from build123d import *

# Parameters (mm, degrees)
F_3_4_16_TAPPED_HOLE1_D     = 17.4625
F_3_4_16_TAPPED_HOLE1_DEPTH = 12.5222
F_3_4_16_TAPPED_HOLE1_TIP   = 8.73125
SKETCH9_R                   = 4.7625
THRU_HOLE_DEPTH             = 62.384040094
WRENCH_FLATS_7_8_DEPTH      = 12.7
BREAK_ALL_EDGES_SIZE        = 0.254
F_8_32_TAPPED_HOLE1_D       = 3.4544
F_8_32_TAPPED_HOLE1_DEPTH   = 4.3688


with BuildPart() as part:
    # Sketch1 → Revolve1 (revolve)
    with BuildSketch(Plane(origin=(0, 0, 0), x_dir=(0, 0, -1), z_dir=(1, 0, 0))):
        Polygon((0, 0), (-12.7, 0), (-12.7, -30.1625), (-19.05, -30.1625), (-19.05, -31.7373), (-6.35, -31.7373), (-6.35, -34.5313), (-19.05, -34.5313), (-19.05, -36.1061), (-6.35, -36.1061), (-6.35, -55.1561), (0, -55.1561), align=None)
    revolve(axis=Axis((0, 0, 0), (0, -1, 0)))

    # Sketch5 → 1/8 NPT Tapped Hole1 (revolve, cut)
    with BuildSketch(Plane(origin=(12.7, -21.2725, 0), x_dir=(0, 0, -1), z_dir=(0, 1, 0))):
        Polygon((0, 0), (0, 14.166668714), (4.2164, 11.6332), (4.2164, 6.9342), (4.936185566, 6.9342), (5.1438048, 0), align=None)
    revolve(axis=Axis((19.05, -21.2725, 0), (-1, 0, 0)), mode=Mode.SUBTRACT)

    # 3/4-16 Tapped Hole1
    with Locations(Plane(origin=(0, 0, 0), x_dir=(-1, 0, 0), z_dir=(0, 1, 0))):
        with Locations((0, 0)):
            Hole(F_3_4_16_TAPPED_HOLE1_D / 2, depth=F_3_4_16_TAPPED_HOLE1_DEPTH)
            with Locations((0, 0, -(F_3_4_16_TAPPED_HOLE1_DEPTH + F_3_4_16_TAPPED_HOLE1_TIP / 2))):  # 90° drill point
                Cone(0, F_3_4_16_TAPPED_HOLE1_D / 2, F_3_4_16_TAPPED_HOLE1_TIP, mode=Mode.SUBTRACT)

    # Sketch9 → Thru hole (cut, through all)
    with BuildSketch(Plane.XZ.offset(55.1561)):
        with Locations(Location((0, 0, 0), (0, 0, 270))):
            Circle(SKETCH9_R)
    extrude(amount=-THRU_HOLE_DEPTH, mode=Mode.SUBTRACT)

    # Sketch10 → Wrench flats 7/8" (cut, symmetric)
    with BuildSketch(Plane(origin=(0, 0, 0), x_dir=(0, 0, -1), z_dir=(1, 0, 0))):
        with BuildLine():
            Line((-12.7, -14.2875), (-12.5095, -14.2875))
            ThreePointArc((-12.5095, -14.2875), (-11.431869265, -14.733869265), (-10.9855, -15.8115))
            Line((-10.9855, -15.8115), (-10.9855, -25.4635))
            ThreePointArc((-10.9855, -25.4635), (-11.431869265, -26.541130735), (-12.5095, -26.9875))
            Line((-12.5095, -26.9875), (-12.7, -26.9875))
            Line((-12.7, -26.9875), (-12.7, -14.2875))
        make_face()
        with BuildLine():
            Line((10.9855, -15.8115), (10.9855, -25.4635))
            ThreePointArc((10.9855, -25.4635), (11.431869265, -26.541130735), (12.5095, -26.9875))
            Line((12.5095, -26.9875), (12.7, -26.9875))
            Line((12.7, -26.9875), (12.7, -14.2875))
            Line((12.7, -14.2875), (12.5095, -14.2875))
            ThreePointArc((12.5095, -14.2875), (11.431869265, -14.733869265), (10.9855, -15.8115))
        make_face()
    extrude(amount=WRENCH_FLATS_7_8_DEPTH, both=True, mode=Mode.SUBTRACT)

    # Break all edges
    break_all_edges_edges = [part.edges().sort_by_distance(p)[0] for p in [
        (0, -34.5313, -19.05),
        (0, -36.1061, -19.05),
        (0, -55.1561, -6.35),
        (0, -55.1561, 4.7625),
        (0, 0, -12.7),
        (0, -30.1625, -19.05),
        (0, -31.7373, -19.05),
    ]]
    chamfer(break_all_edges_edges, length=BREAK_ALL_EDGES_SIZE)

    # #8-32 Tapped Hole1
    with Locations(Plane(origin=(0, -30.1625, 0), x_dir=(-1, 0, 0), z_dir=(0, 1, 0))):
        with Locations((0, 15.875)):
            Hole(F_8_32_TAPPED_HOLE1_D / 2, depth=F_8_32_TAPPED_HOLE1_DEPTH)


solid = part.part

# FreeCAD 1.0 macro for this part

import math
import FreeCAD as App
import Part
import Sketcher

V = App.Vector
Q = App.Units.Quantity


def edges_at(feature, points):
    """Names of the edges that pass closest to the given points."""
    edges = feature.Shape.Edges
    near = lambda p: min(range(len(edges)), key=lambda i: edges[i].distToShape(Part.Vertex(*p))[0])
    return sorted({f"Edge{near(p) + 1}" for p in points})


def add_polygon(sketch, points):
    """Adds a closed chain of lines whose ends are joined by coincident constraints."""
    first, n = sketch.GeometryCount, len(points)
    for a, b in zip(points, points[1:] + points[:1]):
        sketch.addGeometry(Part.LineSegment(App.Vector(*a, 0), App.Vector(*b, 0)), False)
    for i in range(n):
        sketch.addConstraint(Sketcher.Constraint("Coincident", first + i, 2, first + (i + 1) % n, 1))

doc = App.newDocument("Part")
body = doc.addObject("PartDesign::Body", "Body")

sketch1 = body.newObject("Sketcher::SketchObject", "Sketch")
sketch1.AttachmentSupport = (doc.getObject("YZ_Plane"), [""])
sketch1.MapMode = "FlatFace"
add_polygon(sketch1, [(0, 0), (0, 12.7), (-30.1625, 12.7), (-30.1625, 19.05), (-31.7373, 19.05), (-31.7373, 6.35), (-34.5313, 6.35), (-34.5313, 19.05), (-36.1061, 19.05), (-36.1061, 6.35), (-55.1561, 6.35), (-55.1561, 0)])
sketch1.addConstraint([
    Sketcher.Constraint("Vertical", 0),
    Sketcher.Constraint("Horizontal", 1),
    Sketcher.Constraint("Vertical", 2),
    Sketcher.Constraint("Horizontal", 3),
    Sketcher.Constraint("Vertical", 4),
    Sketcher.Constraint("Horizontal", 5),
    Sketcher.Constraint("Vertical", 6),
    Sketcher.Constraint("Horizontal", 7),
    Sketcher.Constraint("Vertical", 8),
    Sketcher.Constraint("Horizontal", 9),
    Sketcher.Constraint("Vertical", 10),
    Sketcher.Constraint("Horizontal", 11),
    Sketcher.Constraint("Coincident", 11, 2, -1, 1),
    Sketcher.Constraint("Horizontal", 3, 2, 6, 2),
    Sketcher.Constraint("Horizontal", 5, 2, 8, 2),
    Sketcher.Constraint("Equal", 3, 7),
    Sketcher.Constraint("Equal", 0, 4),
    Sketcher.Constraint("DistanceY", 0, 1, 0, 2, Q("0.5 in")),
    Sketcher.Constraint("DistanceX", 5, 2, 5, 1, Q("0.11 in")),
    Sketcher.Constraint("DistanceX", 9, 2, 9, 1, Q("0.75 in")),
    Sketcher.Constraint("DistanceY", 2, 1, 2, 2, Q("0.25 in")),
    Sketcher.Constraint("DistanceX", 1, 2, 1, 1, Q("1.1875 in")),
    Sketcher.Constraint("DistanceX", 3, 2, 3, 1, Q("0.062 in")),
])
revolution = body.newObject("PartDesign::Revolution", "Revolution")
revolution.Profile = sketch1
revolution.ReferenceAxis = (sketch1, ["H_Axis"])
revolution.Angle = 360

sketch2 = body.newObject("Sketcher::SketchObject", "Sketch001")
sketch2.AttachmentSupport = (doc.getObject("XZ_Plane"), [""])
sketch2.MapMode = "FlatFace"
sketch2.AttachmentOffset = App.Placement(V(0, 0, 0.8375 * 25.4), App.Rotation())
add_polygon(sketch2, [(-1.466669, 0), (12.7, 0), (12.7, -5.143805), (5.7658, -4.936186), (5.7658, -4.2164), (1.0668, -4.2164)])
sketch2.addConstraint([
    Sketcher.Constraint("Horizontal", 0),
    Sketcher.Constraint("Vertical", 1),
    Sketcher.Constraint("Vertical", 3),
    Sketcher.Constraint("Horizontal", 4),
    Sketcher.Constraint("PointOnObject", 0, 2, -1),
    Sketcher.Constraint("Angle", 5, Q("121 deg")),
    Sketcher.Constraint("DistanceX", -1, 1, 0, 2, Q("0.5 in")),
    Sketcher.Constraint("DistanceX", 4, 2, 4, 1, Q("0.185 in")),
    Sketcher.Constraint("DistanceX", -1, 1, 2, 2, Q("0.227 in")),
    Sketcher.Constraint("DistanceY", 3, 2, -1, 1, Q("0.166 in")),
    Sketcher.Constraint("DistanceY", 1, 2, 1, 1, 5.143805),
    Sketcher.Constraint("DistanceY", 3, 1, 3, 2, 0.719786),
])
groove = body.newObject("PartDesign::Groove", "Groove")
groove.Profile = sketch2
groove.ReferenceAxis = (sketch2, ["H_Axis"])
groove.Angle = 360

sketch3 = body.newObject("Sketcher::SketchObject", "Sketch002")
sketch3.AttachmentSupport = (doc.getObject("XZ_Plane"), [""])
sketch3.MapMode = "FlatFace"
sketch3.addGeometry(Part.Circle(V(0, 0, 0), V(0, 0, 1), 8.73125), False)
sketch3.addConstraint([
    Sketcher.Constraint("Coincident", 0, 3, -1, 1),
    Sketcher.Constraint("Diameter", 0, Q("0.6875 in")),
])
doc.recompute()
hole = body.newObject("PartDesign::Hole", "Hole")
hole.Profile = sketch3
hole.ThreadType = "None"
hole.Diameter = Q("0.6875 in")
hole.DepthType = "Dimension"
hole.Depth = Q("0.493 in")
hole.DrillPoint = "Angled"
hole.DrillPointAngle = 90
hole.Reversed = True

sketch4 = body.newObject("Sketcher::SketchObject", "Sketch003")
sketch4.AttachmentSupport = (doc.getObject("XZ_Plane"), [""])
sketch4.MapMode = "FlatFace"
sketch4.AttachmentOffset = App.Placement(V(0, 0, 2.1715 * 25.4), App.Rotation())
sketch4.addGeometry(Part.Circle(V(0, 0, 0), V(0, 0, 1), 4.7625), False)
sketch4.addConstraint([
    Sketcher.Constraint("Coincident", 0, 3, -1, 1),
    Sketcher.Constraint("Diameter", 0, Q("0.375 in")),
])
pocket1 = body.newObject("PartDesign::Pocket", "Pocket")
pocket1.Profile = sketch4
pocket1.Type = "ThroughAll"

sketch5 = body.newObject("Sketcher::SketchObject", "Sketch004")
sketch5.AttachmentSupport = (doc.getObject("YZ_Plane"), [""])
sketch5.MapMode = "FlatFace"
sketch5.addGeometry([
    Part.LineSegment(V(-14.2875, 12.5095, 0), V(-14.2875, 12.7, 0)),
    Part.LineSegment(V(-14.2875, 12.7, 0), V(-26.9875, 12.7, 0)),
    Part.LineSegment(V(-26.9875, 12.7, 0), V(-26.9875, 12.5095, 0)),
    Part.ArcOfCircle(Part.Circle(V(-25.4635, 12.5095, 0), V(0, 0, 1), 1.524), math.radians(180), math.radians(270)),
    Part.LineSegment(V(-25.4635, 10.9855, 0), V(-15.8115, 10.9855, 0)),
    Part.ArcOfCircle(Part.Circle(V(-15.8115, 12.5095, 0), V(0, 0, 1), 1.524), math.radians(-90), math.radians(0)),
    Part.LineSegment(V(-15.8115, -10.9855, 0), V(-25.4635, -10.9855, 0)),
    Part.ArcOfCircle(Part.Circle(V(-25.4635, -12.5095, 0), V(0, 0, 1), 1.524), math.radians(90), math.radians(180)),
    Part.LineSegment(V(-26.9875, -12.5095, 0), V(-26.9875, -12.7, 0)),
    Part.LineSegment(V(-26.9875, -12.7, 0), V(-14.2875, -12.7, 0)),
    Part.LineSegment(V(-14.2875, -12.7, 0), V(-14.2875, -12.5095, 0)),
    Part.ArcOfCircle(Part.Circle(V(-15.8115, -12.5095, 0), V(0, 0, 1), 1.524), math.radians(0), math.radians(90)),
], False)
sketch5.addConstraint([
    Sketcher.Constraint("Coincident", 0, 2, 1, 1),
    Sketcher.Constraint("Coincident", 1, 2, 2, 1),
    Sketcher.Constraint("Tangent", 2, 2, 3, 1),
    Sketcher.Constraint("Tangent", 3, 2, 4, 1),
    Sketcher.Constraint("Tangent", 4, 2, 5, 1),
    Sketcher.Constraint("Tangent", 5, 2, 0, 1),
    Sketcher.Constraint("Tangent", 6, 2, 7, 1),
    Sketcher.Constraint("Tangent", 7, 2, 8, 1),
    Sketcher.Constraint("Coincident", 8, 2, 9, 1),
    Sketcher.Constraint("Coincident", 9, 2, 10, 1),
    Sketcher.Constraint("Tangent", 10, 2, 11, 1),
    Sketcher.Constraint("Tangent", 11, 2, 6, 1),
    Sketcher.Constraint("Vertical", 0),
    Sketcher.Constraint("Horizontal", 1),
    Sketcher.Constraint("Vertical", 2),
    Sketcher.Constraint("Horizontal", 4),
    Sketcher.Constraint("Horizontal", 6),
    Sketcher.Constraint("Vertical", 8),
    Sketcher.Constraint("Horizontal", 9),
    Sketcher.Constraint("Vertical", 10),
    Sketcher.Constraint("Equal", 3, 5),
    Sketcher.Constraint("Equal", 5, 7),
    Sketcher.Constraint("Equal", 7, 11),
    Sketcher.Constraint("Symmetric", 3, 3, 7, 3, -1),
    Sketcher.Constraint("Symmetric", 0, 2, 9, 2, -1),
    Sketcher.Constraint("Radius", 3, Q("0.06 in")),
    Sketcher.Constraint("DistanceX", 1, 2, 1, 1, Q("0.5 in")),
    Sketcher.Constraint("DistanceY", -1, 1, 0, 2, Q("0.5 in")),
    Sketcher.Constraint("DistanceY", 0, 1, 0, 2, Q("0.0075 in")),
    Sketcher.Constraint("DistanceX", 0, 2, -1, 1, Q("0.5625 in")),
])
pocket2 = body.newObject("PartDesign::Pocket", "Pocket001")
pocket2.Profile = sketch5
pocket2.Length = Q("1 in")
pocket2.Midplane = True
doc.recompute()

chamfer = body.newObject("PartDesign::Chamfer", "Chamfer")
chamfer.Base = (pocket2, edges_at(pocket2, [
    (0, -34.531, -19.05),
    (0, -36.106, -19.05),
    (0, -55.156, -6.35),
    (0, -55.156, 4.763),
    (0, 0, -12.7),
    (0, -30.163, -19.05),
    (0, -31.737, -19.05),
]))
chamfer.Size = Q("0.01 in")

sketch6 = body.newObject("Sketcher::SketchObject", "Sketch005")
sketch6.AttachmentSupport = (doc.getObject("XZ_Plane"), [""])
sketch6.MapMode = "FlatFace"
sketch6.AttachmentOffset = App.Placement(V(0, 0, 1.1875 * 25.4), App.Rotation())
sketch6.addGeometry(Part.Circle(V(0, 15.875, 0), V(0, 0, 1), 1.7272), False)
sketch6.addConstraint([
    Sketcher.Constraint("PointOnObject", 0, 3, -2),
    Sketcher.Constraint("Diameter", 0, Q("0.136 in")),
    Sketcher.Constraint("DistanceY", -1, 1, 0, 3, Q("0.625 in")),
])
doc.recompute()
hole2 = body.newObject("PartDesign::Hole", "Hole001")
hole2.Profile = sketch6
hole2.ThreadType = "None"
hole2.Diameter = Q("0.136 in")
hole2.DepthType = "Dimension"
hole2.Depth = Q("0.172 in")
hole2.DrillPoint = "Flat"
hole2.Reversed = True

doc.recompute()
